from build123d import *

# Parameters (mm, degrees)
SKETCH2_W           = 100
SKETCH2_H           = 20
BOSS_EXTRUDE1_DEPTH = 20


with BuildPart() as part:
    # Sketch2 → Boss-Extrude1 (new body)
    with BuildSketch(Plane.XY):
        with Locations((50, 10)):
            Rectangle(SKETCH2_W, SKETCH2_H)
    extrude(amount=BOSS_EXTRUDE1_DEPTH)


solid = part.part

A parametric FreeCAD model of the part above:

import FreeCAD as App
import Part
import Sketcher
Q = App.Units.Quantity


def add_polygon(sketch, points):
    """Adds a closed chain of lines whose ends are joined by coincident constraints."""
    first, n = sketch.GeometryCount, len(points)
    for a, b in zip(points, points[1:] + points[:1]):
        sketch.addGeometry(Part.LineSegment(App.Vector(*a, 0), App.Vector(*b, 0)), False)
    for i in range(n):
        sketch.addConstraint(Sketcher.Constraint("Coincident", first + i, 2, first + (i + 1) % n, 1))

doc = App.newDocument("Part")
body = doc.addObject("PartDesign::Body", "Body")

# Sketch on XY plane
sketch1 = doc.addObject("Sketcher::SketchObject", "Sketch")
body.addObject(sketch1)
sketch1.AttachmentSupport = (doc.XY_Plane, [""])
sketch1.MapMode = "FlatFace"
add_polygon(sketch1, [(0, 20), (0, 0), (100, 0), (100, 20)])  # lines 0-3
sketch1.addConstraint([
    Sketcher.Constraint("Vertical", 0),
    Sketcher.Constraint("Horizontal", 1),
    Sketcher.Constraint("Vertical", 2),
    Sketcher.Constraint("Horizontal", 3),
    Sketcher.Constraint("Coincident", 0, 2, -1, 1),
    Sketcher.Constraint("DistanceX", 1, 1, 1, 2, Q("100 mm")),
    Sketcher.Constraint("DistanceY", 0, 2, 0, 1, Q("20 mm")),
])
pad1 = doc.addObject("PartDesign::Pad", "Pad")
body.addObject(pad1)
pad1.Profile = sketch1
pad1.Length = 20

doc.recompute()
